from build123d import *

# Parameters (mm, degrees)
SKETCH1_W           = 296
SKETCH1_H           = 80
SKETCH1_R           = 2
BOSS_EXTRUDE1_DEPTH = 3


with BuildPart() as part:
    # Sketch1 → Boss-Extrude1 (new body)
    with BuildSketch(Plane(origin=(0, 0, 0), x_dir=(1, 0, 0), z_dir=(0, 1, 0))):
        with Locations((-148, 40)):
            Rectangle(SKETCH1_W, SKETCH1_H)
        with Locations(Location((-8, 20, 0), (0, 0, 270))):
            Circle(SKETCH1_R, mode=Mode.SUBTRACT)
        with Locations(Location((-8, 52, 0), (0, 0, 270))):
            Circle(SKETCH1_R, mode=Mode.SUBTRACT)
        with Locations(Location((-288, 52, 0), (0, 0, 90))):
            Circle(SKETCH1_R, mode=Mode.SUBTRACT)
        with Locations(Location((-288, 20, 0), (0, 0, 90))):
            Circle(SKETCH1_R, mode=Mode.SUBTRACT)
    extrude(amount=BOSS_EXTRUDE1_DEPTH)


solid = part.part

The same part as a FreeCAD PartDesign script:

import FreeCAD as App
import Part
import Sketcher

V = App.Vector
Q = App.Units.Quantity

doc = App.newDocument("Part")
body = doc.addObject("PartDesign::Body", "Body")

sketch1 = body.newObject("Sketcher::SketchObject", "Sketch")
sketch1.AttachmentSupport = (doc.getObject("XZ_Plane"), [""])
sketch1.MapMode = "FlatFace"
sketch1.addGeometry(Part.LineSegment(V(-296, -80, 0), V(-296, 0, 0)), False)
sketch1.addGeometry(Part.LineSegment(V(-296, 0, 0), V(0, 0, 0)), False)
sketch1.addGeometry(Part.LineSegment(V(0, 0, 0), V(0, -80, 0)), False)
sketch1.addGeometry(Part.LineSegment(V(0, -80, 0), V(-296, -80, 0)), False)
sketch1.addGeometry(Part.Circle(V(-288, -20, 0), V(0, 0, 1), 2), False)
sketch1.addGeometry(Part.Circle(V(-8, -20, 0), V(0, 0, 1), 2), False)
sketch1.addGeometry(Part.Circle(V(-288, -52, 0), V(0, 0, 1), 2), False)
sketch1.addGeometry(Part.Circle(V(-8, -52, 0), V(0, 0, 1), 2), False)
sketch1.addConstraint(Sketcher.Constraint("Coincident", 0, 2, 1, 1))
sketch1.addConstraint(Sketcher.Constraint("Coincident", 1, 2, 2, 1))
sketch1.addConstraint(Sketcher.Constraint("Coincident", 2, 2, 3, 1))
sketch1.addConstraint(Sketcher.Constraint("Coincident", 3, 2, 0, 1))
sketch1.addConstraint(Sketcher.Constraint("Vertical", 0))
sketch1.addConstraint(Sketcher.Constraint("Horizontal", 1))
sketch1.addConstraint(Sketcher.Constraint("Vertical", 2))
sketch1.addConstraint(Sketcher.Constraint("Horizontal", 3))
sketch1.addConstraint(Sketcher.Constraint("Coincident", 1, 2, -1, 1))
sketch1.addConstraint(Sketcher.Constraint("Equal", 4, 5))
sketch1.addConstraint(Sketcher.Constraint("Equal", 5, 6))
sketch1.addConstraint(Sketcher.Constraint("Equal", 6, 7))
sketch1.addConstraint(Sketcher.Constraint("Horizontal", 4, 3, 5, 3))
sketch1.addConstraint(Sketcher.Constraint("Horizontal", 6, 3, 7, 3))
sketch1.addConstraint(Sketcher.Constraint("Vertical", 4, 3, 6, 3))
sketch1.addConstraint(Sketcher.Constraint("Vertical", 5, 3, 7, 3))
sketch1.addConstraint(Sketcher.Constraint("Diameter", 4, Q("4 mm")))
sketch1.addConstraint(Sketcher.Constraint("DistanceX", 1, 1, 1, 2, Q("296 mm")))
sketch1.addConstraint(Sketcher.Constraint("DistanceY", 0, 1, 0, 2, Q("80 mm")))
sketch1.addConstraint(Sketcher.Constraint("DistanceX", 4, 3, -1, 1, Q("288 mm")))
sketch1.addConstraint(Sketcher.Constraint("DistanceY", 4, 3, -1, 1, Q("20 mm")))
sketch1.addConstraint(Sketcher.Constraint("DistanceX", 5, 3, -1, 1, Q("8 mm")))
sketch1.addConstraint(Sketcher.Constraint("DistanceY", 6, 3, -1, 1, Q("52 mm")))
pad1 = body.newObject("PartDesign::Pad", "Pad")
pad1.Profile = sketch1
pad1.Length = 3
pad1.Reversed = True

doc.recompute()
